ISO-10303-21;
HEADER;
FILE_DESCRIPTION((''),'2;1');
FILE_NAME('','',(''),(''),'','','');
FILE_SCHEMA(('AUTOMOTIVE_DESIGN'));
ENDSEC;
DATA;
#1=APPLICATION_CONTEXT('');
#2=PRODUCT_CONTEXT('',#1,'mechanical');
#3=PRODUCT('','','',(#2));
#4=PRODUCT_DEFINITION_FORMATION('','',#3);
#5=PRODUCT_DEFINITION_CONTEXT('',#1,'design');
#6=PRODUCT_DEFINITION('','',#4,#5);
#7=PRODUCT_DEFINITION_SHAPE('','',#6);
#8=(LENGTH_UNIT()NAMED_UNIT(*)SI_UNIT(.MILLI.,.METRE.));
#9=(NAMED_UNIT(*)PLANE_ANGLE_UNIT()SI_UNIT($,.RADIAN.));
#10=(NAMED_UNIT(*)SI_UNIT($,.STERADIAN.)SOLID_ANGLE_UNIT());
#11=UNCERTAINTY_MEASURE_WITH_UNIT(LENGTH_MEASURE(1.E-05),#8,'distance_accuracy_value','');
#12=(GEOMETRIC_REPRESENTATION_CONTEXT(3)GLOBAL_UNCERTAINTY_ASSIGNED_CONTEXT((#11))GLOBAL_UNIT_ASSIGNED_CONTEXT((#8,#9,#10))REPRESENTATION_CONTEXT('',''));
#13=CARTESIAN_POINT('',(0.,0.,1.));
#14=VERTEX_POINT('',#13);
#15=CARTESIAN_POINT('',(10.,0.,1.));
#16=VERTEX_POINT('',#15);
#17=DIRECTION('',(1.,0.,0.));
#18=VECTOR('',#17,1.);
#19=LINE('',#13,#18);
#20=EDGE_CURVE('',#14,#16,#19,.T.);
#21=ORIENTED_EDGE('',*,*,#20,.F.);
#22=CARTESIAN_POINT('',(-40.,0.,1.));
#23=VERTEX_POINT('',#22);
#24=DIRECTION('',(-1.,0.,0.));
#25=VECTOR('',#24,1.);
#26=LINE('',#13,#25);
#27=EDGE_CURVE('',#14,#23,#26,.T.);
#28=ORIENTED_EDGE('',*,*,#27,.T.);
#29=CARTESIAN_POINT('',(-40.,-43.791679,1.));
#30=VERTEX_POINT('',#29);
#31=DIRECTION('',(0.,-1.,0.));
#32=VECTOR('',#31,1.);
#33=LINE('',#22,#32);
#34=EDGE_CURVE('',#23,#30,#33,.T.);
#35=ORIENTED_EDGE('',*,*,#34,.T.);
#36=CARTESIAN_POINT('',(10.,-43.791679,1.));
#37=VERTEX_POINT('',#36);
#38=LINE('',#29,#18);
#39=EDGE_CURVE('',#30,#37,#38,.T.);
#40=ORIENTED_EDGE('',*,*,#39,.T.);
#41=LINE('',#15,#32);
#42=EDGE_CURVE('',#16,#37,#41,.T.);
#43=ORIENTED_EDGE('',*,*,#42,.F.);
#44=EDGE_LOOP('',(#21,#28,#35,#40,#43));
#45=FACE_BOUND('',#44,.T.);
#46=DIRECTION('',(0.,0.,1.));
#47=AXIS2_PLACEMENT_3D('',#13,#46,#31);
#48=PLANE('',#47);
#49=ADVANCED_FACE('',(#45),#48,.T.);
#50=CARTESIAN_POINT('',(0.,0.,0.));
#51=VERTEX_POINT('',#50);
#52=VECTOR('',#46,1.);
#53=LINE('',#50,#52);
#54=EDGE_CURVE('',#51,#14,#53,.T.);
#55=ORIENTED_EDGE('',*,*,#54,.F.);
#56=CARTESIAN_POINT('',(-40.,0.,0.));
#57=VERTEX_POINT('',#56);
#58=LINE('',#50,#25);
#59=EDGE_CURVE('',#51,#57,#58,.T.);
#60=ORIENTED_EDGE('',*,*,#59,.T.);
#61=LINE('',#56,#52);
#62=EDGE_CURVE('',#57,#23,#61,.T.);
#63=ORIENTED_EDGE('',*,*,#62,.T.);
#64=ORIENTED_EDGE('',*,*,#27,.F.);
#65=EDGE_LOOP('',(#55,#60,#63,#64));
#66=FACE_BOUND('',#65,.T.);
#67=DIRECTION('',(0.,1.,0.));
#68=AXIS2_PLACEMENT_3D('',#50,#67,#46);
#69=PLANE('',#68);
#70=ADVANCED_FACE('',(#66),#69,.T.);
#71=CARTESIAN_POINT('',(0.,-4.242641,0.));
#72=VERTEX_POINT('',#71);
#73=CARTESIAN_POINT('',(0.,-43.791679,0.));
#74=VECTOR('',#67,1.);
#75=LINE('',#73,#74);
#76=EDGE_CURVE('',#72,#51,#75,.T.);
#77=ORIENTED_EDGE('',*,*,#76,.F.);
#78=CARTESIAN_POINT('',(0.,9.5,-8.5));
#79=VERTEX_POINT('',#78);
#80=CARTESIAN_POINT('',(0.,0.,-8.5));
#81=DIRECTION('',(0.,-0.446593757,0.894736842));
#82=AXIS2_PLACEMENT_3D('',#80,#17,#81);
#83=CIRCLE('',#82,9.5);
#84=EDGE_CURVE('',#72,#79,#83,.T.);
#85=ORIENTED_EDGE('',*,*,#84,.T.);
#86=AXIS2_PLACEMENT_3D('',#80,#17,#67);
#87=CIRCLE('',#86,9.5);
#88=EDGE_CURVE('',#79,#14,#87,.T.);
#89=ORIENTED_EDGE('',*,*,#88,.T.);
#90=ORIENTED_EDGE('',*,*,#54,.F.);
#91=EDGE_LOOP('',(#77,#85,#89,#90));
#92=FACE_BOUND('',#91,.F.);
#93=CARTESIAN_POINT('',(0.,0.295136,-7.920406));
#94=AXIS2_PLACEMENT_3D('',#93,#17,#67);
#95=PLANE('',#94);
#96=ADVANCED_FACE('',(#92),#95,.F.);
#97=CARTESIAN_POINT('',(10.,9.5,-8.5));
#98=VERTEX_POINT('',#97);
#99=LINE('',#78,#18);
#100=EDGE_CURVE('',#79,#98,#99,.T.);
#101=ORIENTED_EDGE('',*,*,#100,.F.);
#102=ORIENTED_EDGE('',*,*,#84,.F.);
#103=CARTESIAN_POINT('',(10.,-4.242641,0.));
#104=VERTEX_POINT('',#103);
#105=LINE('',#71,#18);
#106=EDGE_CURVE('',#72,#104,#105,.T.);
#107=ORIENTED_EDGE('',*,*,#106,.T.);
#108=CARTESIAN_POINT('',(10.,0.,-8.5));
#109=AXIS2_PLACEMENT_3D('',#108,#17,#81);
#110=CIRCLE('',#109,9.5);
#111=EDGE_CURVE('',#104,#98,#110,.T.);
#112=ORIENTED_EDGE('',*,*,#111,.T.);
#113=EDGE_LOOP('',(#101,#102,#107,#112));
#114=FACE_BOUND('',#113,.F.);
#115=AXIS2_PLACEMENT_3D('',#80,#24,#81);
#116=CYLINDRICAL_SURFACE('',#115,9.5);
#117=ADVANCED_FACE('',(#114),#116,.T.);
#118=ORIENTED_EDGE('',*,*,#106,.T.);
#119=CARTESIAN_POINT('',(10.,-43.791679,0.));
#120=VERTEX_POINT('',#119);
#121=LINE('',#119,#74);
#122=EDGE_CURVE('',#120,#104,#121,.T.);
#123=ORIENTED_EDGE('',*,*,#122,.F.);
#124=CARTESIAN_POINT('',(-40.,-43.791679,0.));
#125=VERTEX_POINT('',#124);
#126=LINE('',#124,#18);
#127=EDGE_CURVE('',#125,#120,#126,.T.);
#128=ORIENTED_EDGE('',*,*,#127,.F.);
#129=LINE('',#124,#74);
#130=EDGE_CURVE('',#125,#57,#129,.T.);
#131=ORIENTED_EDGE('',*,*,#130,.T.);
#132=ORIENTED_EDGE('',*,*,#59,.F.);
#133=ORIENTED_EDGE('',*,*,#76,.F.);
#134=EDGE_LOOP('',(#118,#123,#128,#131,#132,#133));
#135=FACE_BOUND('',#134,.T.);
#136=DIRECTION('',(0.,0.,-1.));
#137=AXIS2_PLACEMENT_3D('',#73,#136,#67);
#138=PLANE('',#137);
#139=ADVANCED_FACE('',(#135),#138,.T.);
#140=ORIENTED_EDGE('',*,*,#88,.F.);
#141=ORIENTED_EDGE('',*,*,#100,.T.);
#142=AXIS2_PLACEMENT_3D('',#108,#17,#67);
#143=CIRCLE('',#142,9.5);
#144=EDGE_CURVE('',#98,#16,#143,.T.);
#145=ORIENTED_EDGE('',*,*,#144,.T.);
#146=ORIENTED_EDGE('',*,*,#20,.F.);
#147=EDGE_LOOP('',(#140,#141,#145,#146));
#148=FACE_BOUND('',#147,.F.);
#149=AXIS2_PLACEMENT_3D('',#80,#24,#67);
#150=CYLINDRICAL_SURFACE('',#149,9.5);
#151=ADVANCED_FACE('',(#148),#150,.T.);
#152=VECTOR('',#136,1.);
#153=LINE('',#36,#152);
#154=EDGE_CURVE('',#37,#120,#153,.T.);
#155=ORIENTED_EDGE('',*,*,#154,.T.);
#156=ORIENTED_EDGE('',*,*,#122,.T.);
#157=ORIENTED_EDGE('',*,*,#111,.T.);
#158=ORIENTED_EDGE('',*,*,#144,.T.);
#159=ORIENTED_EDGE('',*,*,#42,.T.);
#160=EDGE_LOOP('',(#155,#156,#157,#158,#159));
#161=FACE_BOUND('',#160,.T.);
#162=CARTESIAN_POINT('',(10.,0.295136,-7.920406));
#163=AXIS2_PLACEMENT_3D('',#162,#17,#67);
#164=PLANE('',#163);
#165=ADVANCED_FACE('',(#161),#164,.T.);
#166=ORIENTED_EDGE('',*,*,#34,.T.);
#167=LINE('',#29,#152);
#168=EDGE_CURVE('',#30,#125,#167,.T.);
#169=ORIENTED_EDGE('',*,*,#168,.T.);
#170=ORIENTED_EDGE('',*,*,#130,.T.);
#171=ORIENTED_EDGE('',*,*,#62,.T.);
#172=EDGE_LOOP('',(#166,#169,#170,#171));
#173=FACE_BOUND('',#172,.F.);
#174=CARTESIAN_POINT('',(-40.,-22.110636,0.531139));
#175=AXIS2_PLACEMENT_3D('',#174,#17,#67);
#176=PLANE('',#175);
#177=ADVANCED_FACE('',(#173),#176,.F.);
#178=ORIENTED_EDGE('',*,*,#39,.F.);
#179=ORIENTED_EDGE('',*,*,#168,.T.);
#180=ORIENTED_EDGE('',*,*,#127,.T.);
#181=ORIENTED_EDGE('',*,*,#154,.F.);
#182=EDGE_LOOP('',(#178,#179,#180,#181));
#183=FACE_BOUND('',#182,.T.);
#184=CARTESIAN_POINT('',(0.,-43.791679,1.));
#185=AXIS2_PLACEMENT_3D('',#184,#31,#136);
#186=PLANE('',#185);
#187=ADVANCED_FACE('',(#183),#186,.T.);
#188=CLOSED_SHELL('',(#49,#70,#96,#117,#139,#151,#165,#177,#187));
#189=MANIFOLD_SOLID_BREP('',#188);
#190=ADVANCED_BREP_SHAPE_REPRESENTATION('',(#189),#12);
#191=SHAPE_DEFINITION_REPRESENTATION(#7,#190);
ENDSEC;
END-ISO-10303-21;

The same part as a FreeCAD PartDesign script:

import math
import FreeCAD as App
import Part
import Sketcher

V = App.Vector
Q = App.Units.Quantity

doc = App.newDocument("Part")
body = doc.addObject("PartDesign::Body", "Body")

# Sketch on YZ plane
sketch1 = doc.addObject("Sketcher::SketchObject", "Sketch")
body.addObject(sketch1)
sketch1.AttachmentSupport = (doc.YZ_Plane, [""])
sketch1.MapMode = "FlatFace"
sketch1.addGeometry(Part.ArcOfCircle(Part.Circle(V(0, -8.5, 0), V(0, 0, 1), 9.5), math.radians(117), math.radians(360)), False)
sketch1.addGeometry(Part.ArcOfCircle(Part.Circle(V(0, -8.5, 0), V(0, 0, 1), 9.5), math.radians(0), math.radians(90)), False)
sketch1.addGeometry(Part.LineSegment(V(0, 1, 0), V(-43.8, 1, 0)), False)
sketch1.addGeometry(Part.LineSegment(V(-43.8, 1, 0), V(-43.8, 0, 0)), False)
sketch1.addGeometry(Part.LineSegment(V(-43.8, 0, 0), V(-4.2, 0, 0)), False)
sketch1.addConstraint(Sketcher.Constraint("Tangent", 0, 2, 1, 1))
sketch1.addConstraint(Sketcher.Constraint("Tangent", 1, 2, 2, 1))
sketch1.addConstraint(Sketcher.Constraint("Coincident", 2, 2, 3, 1))
sketch1.addConstraint(Sketcher.Constraint("Coincident", 3, 2, 4, 1))
sketch1.addConstraint(Sketcher.Constraint("Coincident", 4, 2, 0, 1))
sketch1.addConstraint(Sketcher.Constraint("Horizontal", 2))
sketch1.addConstraint(Sketcher.Constraint("Vertical", 3))
sketch1.addConstraint(Sketcher.Constraint("Horizontal", 4))
sketch1.addConstraint(Sketcher.Constraint("Equal", 0, 1))
sketch1.addConstraint(Sketcher.Constraint("PointOnObject", 0, 3, -2))
sketch1.addConstraint(Sketcher.Constraint("PointOnObject", 3, 2, -1))
sketch1.addConstraint(Sketcher.Constraint("Horizontal", 1, 3, 0, 2))
sketch1.addConstraint(Sketcher.Constraint("Radius", 0, Q("9.5 mm")))
sketch1.addConstraint(Sketcher.Constraint("DistanceY", 3, 2, 3, 1, Q("1 mm")))
sketch1.addConstraint(Sketcher.Constraint("DistanceX", 2, 2, 2, 1, Q("43.791679 mm")))
pad1 = doc.addObject("PartDesign::Pad", "Pad")
body.addObject(pad1)
pad1.Profile = sketch1
pad1.Length = 10

# Sketch on YZ plane
sketch2 = doc.addObject("Sketcher::SketchObject", "Sketch001")
body.addObject(sketch2)
sketch2.AttachmentSupport = (doc.YZ_Plane, [""])
sketch2.MapMode = "FlatFace"
sketch2.addGeometry(Part.LineSegment(V(0, 1, 0), V(-43.8, 1, 0)), False)
sketch2.addGeometry(Part.LineSegment(V(-43.8, 1, 0), V(-43.8, 0, 0)), False)
sketch2.addGeometry(Part.LineSegment(V(-43.8, 0, 0), V(0, 0, 0)), False)
sketch2.addGeometry(Part.LineSegment(V(0, 0, 0), V(0, 1, 0)), False)
sketch2.addConstraint(Sketcher.Constraint("Coincident", 0, 2, 1, 1))
sketch2.addConstraint(Sketcher.Constraint("Coincident", 1, 2, 2, 1))
sketch2.addConstraint(Sketcher.Constraint("Coincident", 2, 2, 3, 1))
sketch2.addConstraint(Sketcher.Constraint("Coincident", 3, 2, 0, 1))
sketch2.addConstraint(Sketcher.Constraint("Horizontal", 0))
sketch2.addConstraint(Sketcher.Constraint("Vertical", 1))
sketch2.addConstraint(Sketcher.Constraint("Horizontal", 2))
sketch2.addConstraint(Sketcher.Constraint("Vertical", 3))
sketch2.addConstraint(Sketcher.Constraint("Coincident", 2, 2, -1, 1))
sketch2.addConstraint(Sketcher.Constraint("DistanceY", 1, 2, 1, 1, Q("1 mm")))
sketch2.addConstraint(Sketcher.Constraint("DistanceX", 0, 2, 0, 1, Q("43.791679 mm")))
pad2 = doc.addObject("PartDesign::Pad", "Pad001")
body.addObject(pad2)
pad2.Profile = sketch2
pad2.Length = 40
pad2.Reversed = True

doc.recompute()
